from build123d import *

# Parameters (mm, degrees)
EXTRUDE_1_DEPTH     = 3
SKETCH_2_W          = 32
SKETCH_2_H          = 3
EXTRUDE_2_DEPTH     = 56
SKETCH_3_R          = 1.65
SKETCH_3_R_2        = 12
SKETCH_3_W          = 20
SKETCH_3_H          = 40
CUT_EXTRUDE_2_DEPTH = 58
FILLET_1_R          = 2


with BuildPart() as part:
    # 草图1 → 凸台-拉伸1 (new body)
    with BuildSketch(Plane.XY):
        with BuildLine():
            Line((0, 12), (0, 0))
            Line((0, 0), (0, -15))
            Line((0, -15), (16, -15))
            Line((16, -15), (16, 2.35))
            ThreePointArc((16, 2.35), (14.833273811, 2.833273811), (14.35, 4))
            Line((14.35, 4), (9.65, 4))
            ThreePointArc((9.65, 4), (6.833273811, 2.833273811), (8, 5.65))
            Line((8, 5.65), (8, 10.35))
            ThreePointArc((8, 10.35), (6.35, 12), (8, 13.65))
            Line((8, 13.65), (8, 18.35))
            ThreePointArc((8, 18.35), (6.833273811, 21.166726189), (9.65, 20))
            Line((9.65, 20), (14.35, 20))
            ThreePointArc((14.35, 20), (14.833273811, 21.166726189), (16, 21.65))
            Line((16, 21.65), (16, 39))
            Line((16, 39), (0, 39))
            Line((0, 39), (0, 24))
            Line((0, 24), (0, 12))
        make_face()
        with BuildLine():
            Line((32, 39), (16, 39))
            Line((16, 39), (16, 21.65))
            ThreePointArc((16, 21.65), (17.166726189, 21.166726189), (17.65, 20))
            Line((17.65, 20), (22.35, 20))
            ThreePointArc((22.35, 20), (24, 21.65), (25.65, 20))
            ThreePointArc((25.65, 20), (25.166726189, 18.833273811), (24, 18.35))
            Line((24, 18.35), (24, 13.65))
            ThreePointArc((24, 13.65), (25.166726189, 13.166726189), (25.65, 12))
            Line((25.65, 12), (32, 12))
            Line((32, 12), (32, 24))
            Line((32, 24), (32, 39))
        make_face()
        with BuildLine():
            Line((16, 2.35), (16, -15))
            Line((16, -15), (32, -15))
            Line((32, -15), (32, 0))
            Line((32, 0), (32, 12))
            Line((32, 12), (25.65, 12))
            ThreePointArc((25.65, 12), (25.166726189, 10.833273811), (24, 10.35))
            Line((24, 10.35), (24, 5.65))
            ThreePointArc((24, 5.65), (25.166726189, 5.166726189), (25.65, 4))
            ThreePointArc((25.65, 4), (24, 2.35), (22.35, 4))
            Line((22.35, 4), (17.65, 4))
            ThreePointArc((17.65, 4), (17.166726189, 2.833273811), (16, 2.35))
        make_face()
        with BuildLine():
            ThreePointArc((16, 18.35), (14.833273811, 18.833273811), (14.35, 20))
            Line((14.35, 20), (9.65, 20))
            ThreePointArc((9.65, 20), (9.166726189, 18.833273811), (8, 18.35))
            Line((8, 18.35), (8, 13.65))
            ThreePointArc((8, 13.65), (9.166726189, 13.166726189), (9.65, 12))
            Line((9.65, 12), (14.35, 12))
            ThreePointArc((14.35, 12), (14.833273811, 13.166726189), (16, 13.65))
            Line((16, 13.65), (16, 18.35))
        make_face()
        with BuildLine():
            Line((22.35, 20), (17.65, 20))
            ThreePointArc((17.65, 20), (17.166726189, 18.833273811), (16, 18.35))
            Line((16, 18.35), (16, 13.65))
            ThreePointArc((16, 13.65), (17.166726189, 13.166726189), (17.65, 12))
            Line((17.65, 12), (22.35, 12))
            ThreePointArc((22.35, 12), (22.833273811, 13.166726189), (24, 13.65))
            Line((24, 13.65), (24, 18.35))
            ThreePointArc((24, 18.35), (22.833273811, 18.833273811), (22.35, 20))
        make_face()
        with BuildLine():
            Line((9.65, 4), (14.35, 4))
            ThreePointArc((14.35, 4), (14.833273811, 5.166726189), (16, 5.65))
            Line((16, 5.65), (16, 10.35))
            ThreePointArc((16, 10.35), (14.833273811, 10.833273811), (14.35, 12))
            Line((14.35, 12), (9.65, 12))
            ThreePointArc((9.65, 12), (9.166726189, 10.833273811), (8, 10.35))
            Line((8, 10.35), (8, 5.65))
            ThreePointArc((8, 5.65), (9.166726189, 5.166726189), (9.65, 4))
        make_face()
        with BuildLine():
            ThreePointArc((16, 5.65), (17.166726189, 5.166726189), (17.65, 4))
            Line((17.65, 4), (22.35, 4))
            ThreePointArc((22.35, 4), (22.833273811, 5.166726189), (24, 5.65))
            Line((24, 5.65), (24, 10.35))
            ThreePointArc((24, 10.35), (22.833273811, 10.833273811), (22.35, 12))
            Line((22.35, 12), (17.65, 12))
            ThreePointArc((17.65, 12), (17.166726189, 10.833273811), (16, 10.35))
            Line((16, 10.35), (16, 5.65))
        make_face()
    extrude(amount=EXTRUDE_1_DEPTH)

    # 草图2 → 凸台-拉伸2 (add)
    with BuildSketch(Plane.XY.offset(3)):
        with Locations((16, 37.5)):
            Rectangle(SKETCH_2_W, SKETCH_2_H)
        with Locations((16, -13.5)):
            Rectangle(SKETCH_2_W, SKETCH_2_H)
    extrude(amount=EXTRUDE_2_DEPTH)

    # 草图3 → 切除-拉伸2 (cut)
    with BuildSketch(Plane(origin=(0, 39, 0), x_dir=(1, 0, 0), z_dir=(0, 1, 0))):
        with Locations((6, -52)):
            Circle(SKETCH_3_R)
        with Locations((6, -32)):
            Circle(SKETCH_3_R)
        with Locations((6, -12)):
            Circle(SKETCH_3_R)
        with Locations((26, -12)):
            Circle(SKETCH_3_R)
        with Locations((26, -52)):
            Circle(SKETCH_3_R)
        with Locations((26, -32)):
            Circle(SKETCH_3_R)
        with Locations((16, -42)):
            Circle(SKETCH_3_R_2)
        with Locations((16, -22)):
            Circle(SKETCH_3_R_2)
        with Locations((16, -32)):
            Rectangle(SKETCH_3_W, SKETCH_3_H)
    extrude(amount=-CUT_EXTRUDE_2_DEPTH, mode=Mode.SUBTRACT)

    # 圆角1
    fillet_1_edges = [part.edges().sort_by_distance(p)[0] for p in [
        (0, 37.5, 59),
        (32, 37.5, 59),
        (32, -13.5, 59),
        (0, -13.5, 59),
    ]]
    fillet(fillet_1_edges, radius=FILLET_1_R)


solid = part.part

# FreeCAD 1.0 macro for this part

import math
import FreeCAD as App
import Part
import Sketcher
from FreeCAD import Vector


def edges_at(feature, points):
    """Names of the edges that pass closest to the given points."""
    edges = feature.Shape.Edges
    near = lambda p: min(range(len(edges)), key=lambda i: edges[i].distToShape(Part.Vertex(*p))[0])
    return sorted({f"Edge{near(p) + 1}" for p in points})

doc = App.newDocument("Part")
body = doc.addObject("PartDesign::Body", "Body")

# Sketch on XY plane
sketch1 = body.newObject("Sketcher::SketchObject", "Sketch")
sketch1.AttachmentSupport = (doc.getObject("XY_Plane"), [""])
sketch1.MapMode = "FlatFace"
sketch1.addGeometry([
    Part.LineSegment(Vector(0, -15, 0), Vector(32, -15, 0)),  # 0
    Part.LineSegment(Vector(32, -15, 0), Vector(32, 39, 0)),  # 1
    Part.LineSegment(Vector(32, 39, 0), Vector(0, 39, 0)),  # 2
    Part.LineSegment(Vector(0, 39, 0), Vector(0, -15, 0)),  # 3
    Part.ArcOfCircle(Part.Circle(Vector(16, 4, 0), Vector(0, 0, 1), 1.6), math.radians(180), math.radians(270)),  # 4
    Part.ArcOfCircle(Part.Circle(Vector(16, 4, 0), Vector(0, 0, 1), 1.6), math.radians(90), math.radians(180)),  # 5
    Part.ArcOfCircle(Part.Circle(Vector(16, 4, 0), Vector(0, 0, 1), 1.6), math.radians(0), math.radians(90)),  # 6
    Part.ArcOfCircle(Part.Circle(Vector(16, 4, 0), Vector(0, 0, 1), 1.6), math.radians(-90), math.radians(0)),  # 7
    Part.ArcOfCircle(Part.Circle(Vector(16, 12, 0), Vector(0, 0, 1), 1.6), math.radians(180), math.radians(270)),  # 8
    Part.ArcOfCircle(Part.Circle(Vector(16, 12, 0), Vector(0, 0, 1), 1.6), math.radians(90), math.radians(180)),  # 9
    Part.ArcOfCircle(Part.Circle(Vector(16, 12, 0), Vector(0, 0, 1), 1.6), math.radians(0), math.radians(90)),  # 10
    Part.ArcOfCircle(Part.Circle(Vector(16, 12, 0), Vector(0, 0, 1), 1.6), math.radians(-90), math.radians(0)),  # 11
    Part.ArcOfCircle(Part.Circle(Vector(24, 12, 0), Vector(0, 0, 1), 1.6), math.radians(90), math.radians(180)),  # 12
    Part.ArcOfCircle(Part.Circle(Vector(24, 12, 0), Vector(0, 0, 1), 1.6), math.radians(0), math.radians(90)),  # 13
    Part.ArcOfCircle(Part.Circle(Vector(24, 12, 0), Vector(0, 0, 1), 1.6), math.radians(-90), math.radians(0)),  # 14
    Part.ArcOfCircle(Part.Circle(Vector(24, 12, 0), Vector(0, 0, 1), 1.6), math.radians(180), math.radians(270)),  # 15
    Part.ArcOfCircle(Part.Circle(Vector(24, 4, 0), Vector(0, 0, 1), 1.6), math.radians(0), math.radians(90)),  # 16
    Part.ArcOfCircle(Part.Circle(Vector(24, 4, 0), Vector(0, 0, 1), 1.6), math.radians(180), math.radians(360)),  # 17
    Part.ArcOfCircle(Part.Circle(Vector(24, 4, 0), Vector(0, 0, 1), 1.6), math.radians(90), math.radians(180)),  # 18
    Part.ArcOfCircle(Part.Circle(Vector(8, 4, 0), Vector(0, 0, 1), 1.6), math.radians(90), math.radians(360)),  # 19
    Part.ArcOfCircle(Part.Circle(Vector(8, 4, 0), Vector(0, 0, 1), 1.6), math.radians(0), math.radians(90)),  # 20
    Part.ArcOfCircle(Part.Circle(Vector(8, 12, 0), Vector(0, 0, 1), 1.6), math.radians(90), math.radians(270)),  # 21
    Part.ArcOfCircle(Part.Circle(Vector(8, 12, 0), Vector(0, 0, 1), 1.6), math.radians(0), math.radians(90)),  # 22
    Part.ArcOfCircle(Part.Circle(Vector(8, 12, 0), Vector(0, 0, 1), 1.6), math.radians(-90), math.radians(0)),  # 23
    Part.ArcOfCircle(Part.Circle(Vector(16, 20, 0), Vector(0, 0, 1), 1.6), math.radians(180), math.radians(270)),  # 24
    Part.ArcOfCircle(Part.Circle(Vector(16, 20, 0), Vector(0, 0, 1), 1.6), math.radians(90), math.radians(180)),  # 25
    Part.ArcOfCircle(Part.Circle(Vector(16, 20, 0), Vector(0, 0, 1), 1.6), math.radians(0), math.radians(90)),  # 26
    Part.ArcOfCircle(Part.Circle(Vector(16, 20, 0), Vector(0, 0, 1), 1.6), math.radians(-90), math.radians(0)),  # 27
    Part.ArcOfCircle(Part.Circle(Vector(24, 20, 0), Vector(0, 0, 1), 1.6), math.radians(0), math.radians(180)),  # 28
    Part.ArcOfCircle(Part.Circle(Vector(24, 20, 0), Vector(0, 0, 1), 1.6), math.radians(-90), math.radians(0)),  # 29
    Part.ArcOfCircle(Part.Circle(Vector(24, 20, 0), Vector(0, 0, 1), 1.6), math.radians(180), math.radians(270)),  # 30
    Part.ArcOfCircle(Part.Circle(Vector(8, 20, 0), Vector(0, 0, 1), 1.6), math.radians(0), math.radians(270)),  # 31
    Part.ArcOfCircle(Part.Circle(Vector(8, 20, 0), Vector(0, 0, 1), 1.6), math.radians(-90), math.radians(0)),  # 32
], False)
sketch1.addConstraint([
    Sketcher.Constraint("Coincident", 0, 2, 1, 1),
    Sketcher.Constraint("Coincident", 1, 2, 2, 1),
    Sketcher.Constraint("Coincident", 2, 2, 3, 1),
    Sketcher.Constraint("Coincident", 3, 2, 0, 1),
    Sketcher.Constraint("Tangent", 4, 1, 5, 2),
    Sketcher.Constraint("Tangent", 5, 1, 6, 2),
    Sketcher.Constraint("Tangent", 6, 1, 7, 2),
    Sketcher.Constraint("Tangent", 7, 1, 4, 2),
    Sketcher.Constraint("Tangent", 8, 1, 9, 2),
    Sketcher.Constraint("Tangent", 9, 1, 10, 2),
    Sketcher.Constraint("Tangent", 10, 1, 11, 2),
    Sketcher.Constraint("Tangent", 11, 1, 8, 2),
    Sketcher.Constraint("Tangent", 12, 1, 13, 2),
    Sketcher.Constraint("Tangent", 13, 1, 14, 2),
    Sketcher.Constraint("Tangent", 14, 1, 15, 2),
    Sketcher.Constraint("Tangent", 15, 1, 12, 2),
    Sketcher.Constraint("Tangent", 16, 1, 17, 2),
    Sketcher.Constraint("Tangent", 17, 1, 18, 2),
    Sketcher.Constraint("Tangent", 18, 1, 16, 2),
    Sketcher.Constraint("Tangent", 19, 1, 20, 2),
    Sketcher.Constraint("Coincident", 20, 1, 19, 2),
    Sketcher.Constraint("Tangent", 21, 1, 22, 2),
    Sketcher.Constraint("Tangent", 22, 1, 23, 2),
    Sketcher.Constraint("Tangent", 23, 1, 21, 2),
    Sketcher.Constraint("Tangent", 24, 1, 25, 2),
    Sketcher.Constraint("Tangent", 25, 1, 26, 2),
    Sketcher.Constraint("Tangent", 26, 1, 27, 2),
    Sketcher.Constraint("Tangent", 27, 1, 24, 2),
    Sketcher.Constraint("Tangent", 28, 1, 29, 2),
    Sketcher.Constraint("Tangent", 29, 1, 30, 2),
    Sketcher.Constraint("Tangent", 30, 1, 28, 2),
    Sketcher.Constraint("Tangent", 31, 1, 32, 2),
    Sketcher.Constraint("Coincident", 32, 1, 31, 2),
    Sketcher.Constraint("Horizontal", 0),
    Sketcher.Constraint("Vertical", 1),
    Sketcher.Constraint("Horizontal", 2),
    Sketcher.Constraint("Vertical", 3),
    Sketcher.Constraint("Equal", 4, 5),
    Sketcher.Constraint("Equal", 7, 8),
    Sketcher.Constraint("Equal", 8, 9),
    Sketcher.Constraint("Equal", 11, 12),
    Sketcher.Constraint("Equal", 12, 13),
    Sketcher.Constraint("Equal", 15, 16),
    Sketcher.Constraint("Equal", 18, 19),
    Sketcher.Constraint("Equal", 20, 21),
    Sketcher.Constraint("Equal", 23, 24),
    Sketcher.Constraint("Equal", 24, 25),
    Sketcher.Constraint("Equal", 27, 28),
    Sketcher.Constraint("Equal", 30, 31),
    Sketcher.Constraint("PointOnObject", 2, 2, -2),
    Sketcher.Constraint("Horizontal", 11, 3, 12, 3),
    Sketcher.Constraint("Horizontal", 7, 3, 16, 3),
    Sketcher.Constraint("Horizontal", 18, 3, 19, 3),
    Sketcher.Constraint("Horizontal", 15, 3, 21, 3),
    Sketcher.Constraint("Horizontal", 27, 3, 28, 3),
    Sketcher.Constraint("Horizontal", 30, 3, 31, 3),
    Sketcher.Constraint("Horizontal", 20, 3, 4, 1),
    Sketcher.Constraint("Horizontal", 4, 1, 6, 1),
    Sketcher.Constraint("Horizontal", 23, 3, 8, 1),
    Sketcher.Constraint("Horizontal", 8, 1, 10, 1),
    Sketcher.Constraint("Horizontal", 10, 1, 13, 1),
    Sketcher.Constraint("Horizontal", 13, 1, 15, 1),
    Sketcher.Constraint("Horizontal", 6, 1, 16, 1),
    Sketcher.Constraint("Horizontal", 16, 1, 17, 1),
    Sketcher.Constraint("Horizontal", 17, 1, 20, 1),
    Sketcher.Constraint("Horizontal", 15, 1, 22, 1),
    Sketcher.Constraint("Horizontal", 32, 3, 24, 1),
    Sketcher.Constraint("Horizontal", 24, 1, 26, 1),
    Sketcher.Constraint("Horizontal", 26, 1, 28, 1),
    Sketcher.Constraint("Horizontal", 28, 1, 30, 1),
    Sketcher.Constraint("Horizontal", 30, 1, 31, 1),
    Sketcher.Constraint("Vertical", 7, 3, 8, 3),
    Sketcher.Constraint("Vertical", 15, 3, 16, 3),
    Sketcher.Constraint("Vertical", 20, 3, 21, 3),
    Sketcher.Constraint("Vertical", 11, 3, 24, 3),
    Sketcher.Constraint("Vertical", 18, 3, 28, 3),
    Sketcher.Constraint("Vertical", 23, 3, 31, 3),
    Sketcher.Constraint("Vertical", 27, 3, 5, 1),
    Sketcher.Constraint("Vertical", 5, 1, 7, 1),
    Sketcher.Constraint("Vertical", 7, 1, 9, 1),
    Sketcher.Constraint("Vertical", 9, 1, 11, 1),
    Sketcher.Constraint("Vertical", 30, 3, 12, 1),
    Sketcher.Constraint("Vertical", 12, 1, 14, 1),
    Sketcher.Constraint("Vertical", 14, 1, 18, 1),
    Sketcher.Constraint("Vertical", 32, 3, 19, 1),
    Sketcher.Constraint("Vertical", 19, 1, 21, 1),
    Sketcher.Constraint("Vertical", 21, 1, 23, 1),
    Sketcher.Constraint("Vertical", 11, 1, 25, 1),
    Sketcher.Constraint("Vertical", 25, 1, 27, 1),
    Sketcher.Constraint("Vertical", 18, 1, 29, 1),
    Sketcher.Constraint("Vertical", 23, 1, 32, 1),
    Sketcher.Constraint("DistanceX", 0, 1, 0, 2, 32.0),
    Sketcher.Constraint("DistanceY", 1, 1, 1, 2, 54.0),
    Sketcher.Constraint("Radius", 4, 1.65),
    Sketcher.Constraint("DistanceX", -1, 1, 4, 3, 16.0),
    Sketcher.Constraint("DistanceY", -1, 1, 4, 3, 4.0),
    Sketcher.Constraint("DistanceY", -1, 1, 8, 3, 12.0),
    Sketcher.Constraint("DistanceX", -1, 1, 12, 3, 24.0),
    Sketcher.Constraint("DistanceX", -1, 1, 19, 3, 8.0),
    Sketcher.Constraint("DistanceY", -1, 1, 24, 3, 20.0),
    Sketcher.Constraint("DistanceY", 0, 2, -1, 1, 15.0),
])
pad1 = body.newObject("PartDesign::Pad", "Pad")
pad1.Profile = sketch1
pad1.Length = 3

# Sketch on XY plane
sketch2 = body.newObject("Sketcher::SketchObject", "Sketch001")
sketch2.AttachmentSupport = (doc.getObject("XY_Plane"), [""])
sketch2.MapMode = "FlatFace"
sketch2.AttachmentOffset = App.Placement(Vector(0, 0, 3), App.Rotation())
sketch2.addGeometry([
    Part.LineSegment(Vector(0, 39, 0), Vector(0, 36, 0)),  # 0
    Part.LineSegment(Vector(0, 36, 0), Vector(32, 36, 0)),  # 1
    Part.LineSegment(Vector(32, 36, 0), Vector(32, 39, 0)),  # 2
    Part.LineSegment(Vector(32, 39, 0), Vector(0, 39, 0)),  # 3
    Part.LineSegment(Vector(0, -12, 0), Vector(0, -15, 0)),  # 4
    Part.LineSegment(Vector(0, -15, 0), Vector(32, -15, 0)),  # 5
    Part.LineSegment(Vector(32, -15, 0), Vector(32, -12, 0)),  # 6
    Part.LineSegment(Vector(32, -12, 0), Vector(0, -12, 0)),  # 7
], False)
sketch2.addConstraint([
    Sketcher.Constraint("Coincident", 0, 2, 1, 1),
    Sketcher.Constraint("Coincident", 1, 2, 2, 1),
    Sketcher.Constraint("Coincident", 2, 2, 3, 1),
    Sketcher.Constraint("Coincident", 3, 2, 0, 1),
    Sketcher.Constraint("Coincident", 4, 2, 5, 1),
    Sketcher.Constraint("Coincident", 5, 2, 6, 1),
    Sketcher.Constraint("Coincident", 6, 2, 7, 1),
    Sketcher.Constraint("Coincident", 7, 2, 4, 1),
    Sketcher.Constraint("Vertical", 0),
    Sketcher.Constraint("Horizontal", 1),
    Sketcher.Constraint("Vertical", 2),
    Sketcher.Constraint("Horizontal", 3),
    Sketcher.Constraint("Vertical", 4),
    Sketcher.Constraint("Horizontal", 5),
    Sketcher.Constraint("Vertical", 6),
    Sketcher.Constraint("Horizontal", 7),
    Sketcher.Constraint("PointOnObject", 0, 2, -2),
    Sketcher.Constraint("PointOnObject", 4, 2, -2),
    Sketcher.Constraint("Vertical", 2, 2, 5, 2),
    Sketcher.Constraint("Equal", 2, 4),
    Sketcher.Constraint("DistanceX", 1, 1, 1, 2, 32.0),
    Sketcher.Constraint("DistanceY", 0, 2, 0, 1, 3.0),
    Sketcher.Constraint("DistanceY", -1, 1, 0, 2, 36.0),
    Sketcher.Constraint("DistanceY", 4, 2, -1, 1, 15.0),
])
pad2 = body.newObject("PartDesign::Pad", "Pad001")
pad2.Profile = sketch2
pad2.Length = 56

# Sketch on XZ plane
sketch3 = body.newObject("Sketcher::SketchObject", "Sketch002")
sketch3.AttachmentSupport = (doc.getObject("XZ_Plane"), [""])
sketch3.MapMode = "FlatFace"
sketch3.AttachmentOffset = App.Placement(Vector(0, 0, -39), App.Rotation())
sketch3.addGeometry([
    Part.ArcOfCircle(Part.Circle(Vector(6, 52, 0), Vector(0, 0, 1), 1.6), math.radians(0), math.radians(270)),  # 0
    Part.LineSegment(Vector(7.7, 52, 0), Vector(9.4, 52, 0)),  # 1
    Part.ArcOfCircle(Part.Circle(Vector(16, 42, 0), Vector(0, 0, 1), 12), math.radians(56), math.radians(124)),  # 2
    Part.LineSegment(Vector(22.6, 52, 0), Vector(24.4, 52, 0)),  # 3
    Part.ArcOfCircle(Part.Circle(Vector(26, 52, 0), Vector(0, 0, 1), 1.6), math.radians(-90), math.radians(180)),  # 4
    Part.LineSegment(Vector(26, 50.4, 0), Vector(26, 48.6, 0)),  # 5
    Part.ArcOfCircle(Part.Circle(Vector(16, 42, 0), Vector(0, 0, 1), 12), math.radians(-34), math.radians(34)),  # 6
    Part.LineSegment(Vector(26, 35.4, 0), Vector(26, 33.6, 0)),  # 7
    Part.ArcOfCircle(Part.Circle(Vector(26, 32, 0), Vector(0, 0, 1), 1.6), math.radians(-90), math.radians(90)),  # 8
    Part.LineSegment(Vector(26, 30.4, 0), Vector(26, 28.6, 0)),  # 9
    Part.ArcOfCircle(Part.Circle(Vector(16, 22, 0), Vector(0, 0, 1), 12), math.radians(-34), math.radians(34)),  # 10
    Part.LineSegment(Vector(26, 15.4, 0), Vector(26, 13.7, 0)),  # 11
    Part.ArcOfCircle(Part.Circle(Vector(26, 12, 0), Vector(0, 0, 1), 1.6), math.radians(180), math.radians(450)),  # 12
    Part.LineSegment(Vector(24.4, 12, 0), Vector(22.6, 12, 0)),  # 13
    Part.ArcOfCircle(Part.Circle(Vector(16, 22, 0), Vector(0, 0, 1), 12), math.radians(-124), math.radians(-56)),  # 14
    Part.LineSegment(Vector(9.4, 12, 0), Vector(7.7, 12, 0)),  # 15
    Part.ArcOfCircle(Part.Circle(Vector(6, 12, 0), Vector(0, 0, 1), 1.6), math.radians(90), math.radians(360)),  # 16
    Part.LineSegment(Vector(6, 13.7, 0), Vector(6, 15.4, 0)),  # 17
    Part.ArcOfCircle(Part.Circle(Vector(16, 22, 0), Vector(0, 0, 1), 12), math.radians(146), math.radians(214)),  # 18
    Part.LineSegment(Vector(6, 28.6, 0), Vector(6, 30.4, 0)),  # 19
    Part.ArcOfCircle(Part.Circle(Vector(6, 32, 0), Vector(0, 0, 1), 1.6), math.radians(90), math.radians(270)),  # 20
    Part.LineSegment(Vector(6, 33.6, 0), Vector(6, 35.4, 0)),  # 21
    Part.ArcOfCircle(Part.Circle(Vector(16, 42, 0), Vector(0, 0, 1), 12), math.radians(146), math.radians(214)),  # 22
    Part.LineSegment(Vector(6, 48.6, 0), Vector(6, 50.4, 0)),  # 23
], False)
sketch3.addConstraint([
    Sketcher.Constraint("Coincident", 0, 1, 1, 1),
    Sketcher.Constraint("Coincident", 1, 2, 2, 2),
    Sketcher.Constraint("Coincident", 2, 1, 3, 1),
    Sketcher.Constraint("Coincident", 3, 2, 4, 2),
    Sketcher.Constraint("Coincident", 4, 1, 5, 1),
    Sketcher.Constraint("Coincident", 5, 2, 6, 2),
    Sketcher.Constraint("Coincident", 6, 1, 7, 1),
    Sketcher.Constraint("Coincident", 7, 2, 8, 2),
    Sketcher.Constraint("Coincident", 8, 1, 9, 1),
    Sketcher.Constraint("Coincident", 9, 2, 10, 2),
    Sketcher.Constraint("Coincident", 10, 1, 11, 1),
    Sketcher.Constraint("Coincident", 11, 2, 12, 2),
    Sketcher.Constraint("Coincident", 12, 1, 13, 1),
    Sketcher.Constraint("Coincident", 13, 2, 14, 2),
    Sketcher.Constraint("Coincident", 14, 1, 15, 1),
    Sketcher.Constraint("Coincident", 15, 2, 16, 2),
    Sketcher.Constraint("Coincident", 16, 1, 17, 1),
    Sketcher.Constraint("Coincident", 17, 2, 18, 2),
    Sketcher.Constraint("Coincident", 18, 1, 19, 1),
    Sketcher.Constraint("Coincident", 19, 2, 20, 2),
    Sketcher.Constraint("Coincident", 20, 1, 21, 1),
    Sketcher.Constraint("Coincident", 21, 2, 22, 2),
    Sketcher.Constraint("Coincident", 22, 1, 23, 1),
    Sketcher.Constraint("Coincident", 23, 2, 0, 2),
    Sketcher.Constraint("Horizontal", 1),
    Sketcher.Constraint("Horizontal", 3),
    Sketcher.Constraint("Vertical", 5),
    Sketcher.Constraint("Vertical", 7),
    Sketcher.Constraint("Vertical", 9),
    Sketcher.Constraint("Vertical", 11),
    Sketcher.Constraint("Horizontal", 13),
    Sketcher.Constraint("Horizontal", 15),
    Sketcher.Constraint("Vertical", 17),
    Sketcher.Constraint("Vertical", 19),
    Sketcher.Constraint("Vertical", 21),
    Sketcher.Constraint("Vertical", 23),
    Sketcher.Constraint("Coincident", 6, 3, 2, 3),
    Sketcher.Constraint("Coincident", 14, 3, 10, 3),
    Sketcher.Constraint("Coincident", 18, 3, 10, 3),
    Sketcher.Constraint("Coincident", 22, 3, 2, 3),
    Sketcher.Constraint("Equal", 0, 4),
    Sketcher.Constraint("Equal", 2, 6),
    Sketcher.Constraint("Equal", 4, 8),
    Sketcher.Constraint("Equal", 6, 10),
    Sketcher.Constraint("Equal", 8, 12),
    Sketcher.Constraint("Equal", 10, 14),
    Sketcher.Constraint("Equal", 12, 16),
    Sketcher.Constraint("Equal", 14, 18),
    Sketcher.Constraint("Equal", 16, 20),
    Sketcher.Constraint("Equal", 18, 22),
    Sketcher.Constraint("Horizontal", 0, 3, 4, 3),
    Sketcher.Constraint("Horizontal", 12, 3, 16, 3),
    Sketcher.Constraint("Horizontal", 8, 3, 20, 3),
    Sketcher.Constraint("Horizontal", 4, 3, 0, 1),
    Sketcher.Constraint("Horizontal", 1, 2, 2, 1),
    Sketcher.Constraint("Horizontal", 16, 3, 12, 1),
    Sketcher.Constraint("Horizontal", 13, 2, 14, 1),
    Sketcher.Constraint("Horizontal", 10, 1, 17, 2),
    Sketcher.Constraint("Horizontal", 9, 2, 18, 1),
    Sketcher.Constraint("Horizontal", 6, 1, 21, 2),
    Sketcher.Constraint("Horizontal", 5, 2, 22, 1),
    Sketcher.Constraint("Vertical", 4, 3, 8, 3),
    Sketcher.Constraint("Vertical", 6, 3, 10, 3),
    Sketcher.Constraint("Vertical", 8, 3, 12, 3),
    Sketcher.Constraint("Vertical", 0, 3, 16, 3),
    Sketcher.Constraint("Vertical", 16, 3, 20, 3),
    Sketcher.Constraint("Vertical", 12, 3, 4, 1),
    Sketcher.Constraint("Vertical", 5, 2, 6, 1),
    Sketcher.Constraint("Vertical", 7, 2, 8, 1),
    Sketcher.Constraint("Vertical", 9, 2, 10, 1),
    Sketcher.Constraint("Vertical", 2, 1, 13, 2),
    Sketcher.Constraint("Vertical", 20, 3, 16, 1),
    Sketcher.Constraint("Equal", 15, 5),
    Sketcher.Constraint("Equal", 5, 7),
    Sketcher.Constraint("Equal", 7, 9),
    Sketcher.Constraint("Radius", 2, 12.0),
    Sketcher.Constraint("Radius", 0, 1.65),
    Sketcher.Constraint("DistanceX", -1, 1, 0, 3, 6.0),
    Sketcher.Constraint("DistanceY", -1, 1, 0, 3, 52.0),
    Sketcher.Constraint("DistanceX", -1, 1, 2, 3, 16.0),
])
pocket1 = body.newObject("PartDesign::Pocket", "Pocket")
pocket1.Profile = sketch3
pocket1.Length = 58
pocket1.Reversed = True
doc.recompute()

fillet = body.newObject("PartDesign::Fillet", "Fillet")
fillet.Base = (pocket1, edges_at(pocket1, [
    (0, 37.5, 59),
    (32, 37.5, 59),
    (32, -13.5, 59),
    (0, -13.5, 59),
]))
fillet.Radius = 2

doc.recompute()
